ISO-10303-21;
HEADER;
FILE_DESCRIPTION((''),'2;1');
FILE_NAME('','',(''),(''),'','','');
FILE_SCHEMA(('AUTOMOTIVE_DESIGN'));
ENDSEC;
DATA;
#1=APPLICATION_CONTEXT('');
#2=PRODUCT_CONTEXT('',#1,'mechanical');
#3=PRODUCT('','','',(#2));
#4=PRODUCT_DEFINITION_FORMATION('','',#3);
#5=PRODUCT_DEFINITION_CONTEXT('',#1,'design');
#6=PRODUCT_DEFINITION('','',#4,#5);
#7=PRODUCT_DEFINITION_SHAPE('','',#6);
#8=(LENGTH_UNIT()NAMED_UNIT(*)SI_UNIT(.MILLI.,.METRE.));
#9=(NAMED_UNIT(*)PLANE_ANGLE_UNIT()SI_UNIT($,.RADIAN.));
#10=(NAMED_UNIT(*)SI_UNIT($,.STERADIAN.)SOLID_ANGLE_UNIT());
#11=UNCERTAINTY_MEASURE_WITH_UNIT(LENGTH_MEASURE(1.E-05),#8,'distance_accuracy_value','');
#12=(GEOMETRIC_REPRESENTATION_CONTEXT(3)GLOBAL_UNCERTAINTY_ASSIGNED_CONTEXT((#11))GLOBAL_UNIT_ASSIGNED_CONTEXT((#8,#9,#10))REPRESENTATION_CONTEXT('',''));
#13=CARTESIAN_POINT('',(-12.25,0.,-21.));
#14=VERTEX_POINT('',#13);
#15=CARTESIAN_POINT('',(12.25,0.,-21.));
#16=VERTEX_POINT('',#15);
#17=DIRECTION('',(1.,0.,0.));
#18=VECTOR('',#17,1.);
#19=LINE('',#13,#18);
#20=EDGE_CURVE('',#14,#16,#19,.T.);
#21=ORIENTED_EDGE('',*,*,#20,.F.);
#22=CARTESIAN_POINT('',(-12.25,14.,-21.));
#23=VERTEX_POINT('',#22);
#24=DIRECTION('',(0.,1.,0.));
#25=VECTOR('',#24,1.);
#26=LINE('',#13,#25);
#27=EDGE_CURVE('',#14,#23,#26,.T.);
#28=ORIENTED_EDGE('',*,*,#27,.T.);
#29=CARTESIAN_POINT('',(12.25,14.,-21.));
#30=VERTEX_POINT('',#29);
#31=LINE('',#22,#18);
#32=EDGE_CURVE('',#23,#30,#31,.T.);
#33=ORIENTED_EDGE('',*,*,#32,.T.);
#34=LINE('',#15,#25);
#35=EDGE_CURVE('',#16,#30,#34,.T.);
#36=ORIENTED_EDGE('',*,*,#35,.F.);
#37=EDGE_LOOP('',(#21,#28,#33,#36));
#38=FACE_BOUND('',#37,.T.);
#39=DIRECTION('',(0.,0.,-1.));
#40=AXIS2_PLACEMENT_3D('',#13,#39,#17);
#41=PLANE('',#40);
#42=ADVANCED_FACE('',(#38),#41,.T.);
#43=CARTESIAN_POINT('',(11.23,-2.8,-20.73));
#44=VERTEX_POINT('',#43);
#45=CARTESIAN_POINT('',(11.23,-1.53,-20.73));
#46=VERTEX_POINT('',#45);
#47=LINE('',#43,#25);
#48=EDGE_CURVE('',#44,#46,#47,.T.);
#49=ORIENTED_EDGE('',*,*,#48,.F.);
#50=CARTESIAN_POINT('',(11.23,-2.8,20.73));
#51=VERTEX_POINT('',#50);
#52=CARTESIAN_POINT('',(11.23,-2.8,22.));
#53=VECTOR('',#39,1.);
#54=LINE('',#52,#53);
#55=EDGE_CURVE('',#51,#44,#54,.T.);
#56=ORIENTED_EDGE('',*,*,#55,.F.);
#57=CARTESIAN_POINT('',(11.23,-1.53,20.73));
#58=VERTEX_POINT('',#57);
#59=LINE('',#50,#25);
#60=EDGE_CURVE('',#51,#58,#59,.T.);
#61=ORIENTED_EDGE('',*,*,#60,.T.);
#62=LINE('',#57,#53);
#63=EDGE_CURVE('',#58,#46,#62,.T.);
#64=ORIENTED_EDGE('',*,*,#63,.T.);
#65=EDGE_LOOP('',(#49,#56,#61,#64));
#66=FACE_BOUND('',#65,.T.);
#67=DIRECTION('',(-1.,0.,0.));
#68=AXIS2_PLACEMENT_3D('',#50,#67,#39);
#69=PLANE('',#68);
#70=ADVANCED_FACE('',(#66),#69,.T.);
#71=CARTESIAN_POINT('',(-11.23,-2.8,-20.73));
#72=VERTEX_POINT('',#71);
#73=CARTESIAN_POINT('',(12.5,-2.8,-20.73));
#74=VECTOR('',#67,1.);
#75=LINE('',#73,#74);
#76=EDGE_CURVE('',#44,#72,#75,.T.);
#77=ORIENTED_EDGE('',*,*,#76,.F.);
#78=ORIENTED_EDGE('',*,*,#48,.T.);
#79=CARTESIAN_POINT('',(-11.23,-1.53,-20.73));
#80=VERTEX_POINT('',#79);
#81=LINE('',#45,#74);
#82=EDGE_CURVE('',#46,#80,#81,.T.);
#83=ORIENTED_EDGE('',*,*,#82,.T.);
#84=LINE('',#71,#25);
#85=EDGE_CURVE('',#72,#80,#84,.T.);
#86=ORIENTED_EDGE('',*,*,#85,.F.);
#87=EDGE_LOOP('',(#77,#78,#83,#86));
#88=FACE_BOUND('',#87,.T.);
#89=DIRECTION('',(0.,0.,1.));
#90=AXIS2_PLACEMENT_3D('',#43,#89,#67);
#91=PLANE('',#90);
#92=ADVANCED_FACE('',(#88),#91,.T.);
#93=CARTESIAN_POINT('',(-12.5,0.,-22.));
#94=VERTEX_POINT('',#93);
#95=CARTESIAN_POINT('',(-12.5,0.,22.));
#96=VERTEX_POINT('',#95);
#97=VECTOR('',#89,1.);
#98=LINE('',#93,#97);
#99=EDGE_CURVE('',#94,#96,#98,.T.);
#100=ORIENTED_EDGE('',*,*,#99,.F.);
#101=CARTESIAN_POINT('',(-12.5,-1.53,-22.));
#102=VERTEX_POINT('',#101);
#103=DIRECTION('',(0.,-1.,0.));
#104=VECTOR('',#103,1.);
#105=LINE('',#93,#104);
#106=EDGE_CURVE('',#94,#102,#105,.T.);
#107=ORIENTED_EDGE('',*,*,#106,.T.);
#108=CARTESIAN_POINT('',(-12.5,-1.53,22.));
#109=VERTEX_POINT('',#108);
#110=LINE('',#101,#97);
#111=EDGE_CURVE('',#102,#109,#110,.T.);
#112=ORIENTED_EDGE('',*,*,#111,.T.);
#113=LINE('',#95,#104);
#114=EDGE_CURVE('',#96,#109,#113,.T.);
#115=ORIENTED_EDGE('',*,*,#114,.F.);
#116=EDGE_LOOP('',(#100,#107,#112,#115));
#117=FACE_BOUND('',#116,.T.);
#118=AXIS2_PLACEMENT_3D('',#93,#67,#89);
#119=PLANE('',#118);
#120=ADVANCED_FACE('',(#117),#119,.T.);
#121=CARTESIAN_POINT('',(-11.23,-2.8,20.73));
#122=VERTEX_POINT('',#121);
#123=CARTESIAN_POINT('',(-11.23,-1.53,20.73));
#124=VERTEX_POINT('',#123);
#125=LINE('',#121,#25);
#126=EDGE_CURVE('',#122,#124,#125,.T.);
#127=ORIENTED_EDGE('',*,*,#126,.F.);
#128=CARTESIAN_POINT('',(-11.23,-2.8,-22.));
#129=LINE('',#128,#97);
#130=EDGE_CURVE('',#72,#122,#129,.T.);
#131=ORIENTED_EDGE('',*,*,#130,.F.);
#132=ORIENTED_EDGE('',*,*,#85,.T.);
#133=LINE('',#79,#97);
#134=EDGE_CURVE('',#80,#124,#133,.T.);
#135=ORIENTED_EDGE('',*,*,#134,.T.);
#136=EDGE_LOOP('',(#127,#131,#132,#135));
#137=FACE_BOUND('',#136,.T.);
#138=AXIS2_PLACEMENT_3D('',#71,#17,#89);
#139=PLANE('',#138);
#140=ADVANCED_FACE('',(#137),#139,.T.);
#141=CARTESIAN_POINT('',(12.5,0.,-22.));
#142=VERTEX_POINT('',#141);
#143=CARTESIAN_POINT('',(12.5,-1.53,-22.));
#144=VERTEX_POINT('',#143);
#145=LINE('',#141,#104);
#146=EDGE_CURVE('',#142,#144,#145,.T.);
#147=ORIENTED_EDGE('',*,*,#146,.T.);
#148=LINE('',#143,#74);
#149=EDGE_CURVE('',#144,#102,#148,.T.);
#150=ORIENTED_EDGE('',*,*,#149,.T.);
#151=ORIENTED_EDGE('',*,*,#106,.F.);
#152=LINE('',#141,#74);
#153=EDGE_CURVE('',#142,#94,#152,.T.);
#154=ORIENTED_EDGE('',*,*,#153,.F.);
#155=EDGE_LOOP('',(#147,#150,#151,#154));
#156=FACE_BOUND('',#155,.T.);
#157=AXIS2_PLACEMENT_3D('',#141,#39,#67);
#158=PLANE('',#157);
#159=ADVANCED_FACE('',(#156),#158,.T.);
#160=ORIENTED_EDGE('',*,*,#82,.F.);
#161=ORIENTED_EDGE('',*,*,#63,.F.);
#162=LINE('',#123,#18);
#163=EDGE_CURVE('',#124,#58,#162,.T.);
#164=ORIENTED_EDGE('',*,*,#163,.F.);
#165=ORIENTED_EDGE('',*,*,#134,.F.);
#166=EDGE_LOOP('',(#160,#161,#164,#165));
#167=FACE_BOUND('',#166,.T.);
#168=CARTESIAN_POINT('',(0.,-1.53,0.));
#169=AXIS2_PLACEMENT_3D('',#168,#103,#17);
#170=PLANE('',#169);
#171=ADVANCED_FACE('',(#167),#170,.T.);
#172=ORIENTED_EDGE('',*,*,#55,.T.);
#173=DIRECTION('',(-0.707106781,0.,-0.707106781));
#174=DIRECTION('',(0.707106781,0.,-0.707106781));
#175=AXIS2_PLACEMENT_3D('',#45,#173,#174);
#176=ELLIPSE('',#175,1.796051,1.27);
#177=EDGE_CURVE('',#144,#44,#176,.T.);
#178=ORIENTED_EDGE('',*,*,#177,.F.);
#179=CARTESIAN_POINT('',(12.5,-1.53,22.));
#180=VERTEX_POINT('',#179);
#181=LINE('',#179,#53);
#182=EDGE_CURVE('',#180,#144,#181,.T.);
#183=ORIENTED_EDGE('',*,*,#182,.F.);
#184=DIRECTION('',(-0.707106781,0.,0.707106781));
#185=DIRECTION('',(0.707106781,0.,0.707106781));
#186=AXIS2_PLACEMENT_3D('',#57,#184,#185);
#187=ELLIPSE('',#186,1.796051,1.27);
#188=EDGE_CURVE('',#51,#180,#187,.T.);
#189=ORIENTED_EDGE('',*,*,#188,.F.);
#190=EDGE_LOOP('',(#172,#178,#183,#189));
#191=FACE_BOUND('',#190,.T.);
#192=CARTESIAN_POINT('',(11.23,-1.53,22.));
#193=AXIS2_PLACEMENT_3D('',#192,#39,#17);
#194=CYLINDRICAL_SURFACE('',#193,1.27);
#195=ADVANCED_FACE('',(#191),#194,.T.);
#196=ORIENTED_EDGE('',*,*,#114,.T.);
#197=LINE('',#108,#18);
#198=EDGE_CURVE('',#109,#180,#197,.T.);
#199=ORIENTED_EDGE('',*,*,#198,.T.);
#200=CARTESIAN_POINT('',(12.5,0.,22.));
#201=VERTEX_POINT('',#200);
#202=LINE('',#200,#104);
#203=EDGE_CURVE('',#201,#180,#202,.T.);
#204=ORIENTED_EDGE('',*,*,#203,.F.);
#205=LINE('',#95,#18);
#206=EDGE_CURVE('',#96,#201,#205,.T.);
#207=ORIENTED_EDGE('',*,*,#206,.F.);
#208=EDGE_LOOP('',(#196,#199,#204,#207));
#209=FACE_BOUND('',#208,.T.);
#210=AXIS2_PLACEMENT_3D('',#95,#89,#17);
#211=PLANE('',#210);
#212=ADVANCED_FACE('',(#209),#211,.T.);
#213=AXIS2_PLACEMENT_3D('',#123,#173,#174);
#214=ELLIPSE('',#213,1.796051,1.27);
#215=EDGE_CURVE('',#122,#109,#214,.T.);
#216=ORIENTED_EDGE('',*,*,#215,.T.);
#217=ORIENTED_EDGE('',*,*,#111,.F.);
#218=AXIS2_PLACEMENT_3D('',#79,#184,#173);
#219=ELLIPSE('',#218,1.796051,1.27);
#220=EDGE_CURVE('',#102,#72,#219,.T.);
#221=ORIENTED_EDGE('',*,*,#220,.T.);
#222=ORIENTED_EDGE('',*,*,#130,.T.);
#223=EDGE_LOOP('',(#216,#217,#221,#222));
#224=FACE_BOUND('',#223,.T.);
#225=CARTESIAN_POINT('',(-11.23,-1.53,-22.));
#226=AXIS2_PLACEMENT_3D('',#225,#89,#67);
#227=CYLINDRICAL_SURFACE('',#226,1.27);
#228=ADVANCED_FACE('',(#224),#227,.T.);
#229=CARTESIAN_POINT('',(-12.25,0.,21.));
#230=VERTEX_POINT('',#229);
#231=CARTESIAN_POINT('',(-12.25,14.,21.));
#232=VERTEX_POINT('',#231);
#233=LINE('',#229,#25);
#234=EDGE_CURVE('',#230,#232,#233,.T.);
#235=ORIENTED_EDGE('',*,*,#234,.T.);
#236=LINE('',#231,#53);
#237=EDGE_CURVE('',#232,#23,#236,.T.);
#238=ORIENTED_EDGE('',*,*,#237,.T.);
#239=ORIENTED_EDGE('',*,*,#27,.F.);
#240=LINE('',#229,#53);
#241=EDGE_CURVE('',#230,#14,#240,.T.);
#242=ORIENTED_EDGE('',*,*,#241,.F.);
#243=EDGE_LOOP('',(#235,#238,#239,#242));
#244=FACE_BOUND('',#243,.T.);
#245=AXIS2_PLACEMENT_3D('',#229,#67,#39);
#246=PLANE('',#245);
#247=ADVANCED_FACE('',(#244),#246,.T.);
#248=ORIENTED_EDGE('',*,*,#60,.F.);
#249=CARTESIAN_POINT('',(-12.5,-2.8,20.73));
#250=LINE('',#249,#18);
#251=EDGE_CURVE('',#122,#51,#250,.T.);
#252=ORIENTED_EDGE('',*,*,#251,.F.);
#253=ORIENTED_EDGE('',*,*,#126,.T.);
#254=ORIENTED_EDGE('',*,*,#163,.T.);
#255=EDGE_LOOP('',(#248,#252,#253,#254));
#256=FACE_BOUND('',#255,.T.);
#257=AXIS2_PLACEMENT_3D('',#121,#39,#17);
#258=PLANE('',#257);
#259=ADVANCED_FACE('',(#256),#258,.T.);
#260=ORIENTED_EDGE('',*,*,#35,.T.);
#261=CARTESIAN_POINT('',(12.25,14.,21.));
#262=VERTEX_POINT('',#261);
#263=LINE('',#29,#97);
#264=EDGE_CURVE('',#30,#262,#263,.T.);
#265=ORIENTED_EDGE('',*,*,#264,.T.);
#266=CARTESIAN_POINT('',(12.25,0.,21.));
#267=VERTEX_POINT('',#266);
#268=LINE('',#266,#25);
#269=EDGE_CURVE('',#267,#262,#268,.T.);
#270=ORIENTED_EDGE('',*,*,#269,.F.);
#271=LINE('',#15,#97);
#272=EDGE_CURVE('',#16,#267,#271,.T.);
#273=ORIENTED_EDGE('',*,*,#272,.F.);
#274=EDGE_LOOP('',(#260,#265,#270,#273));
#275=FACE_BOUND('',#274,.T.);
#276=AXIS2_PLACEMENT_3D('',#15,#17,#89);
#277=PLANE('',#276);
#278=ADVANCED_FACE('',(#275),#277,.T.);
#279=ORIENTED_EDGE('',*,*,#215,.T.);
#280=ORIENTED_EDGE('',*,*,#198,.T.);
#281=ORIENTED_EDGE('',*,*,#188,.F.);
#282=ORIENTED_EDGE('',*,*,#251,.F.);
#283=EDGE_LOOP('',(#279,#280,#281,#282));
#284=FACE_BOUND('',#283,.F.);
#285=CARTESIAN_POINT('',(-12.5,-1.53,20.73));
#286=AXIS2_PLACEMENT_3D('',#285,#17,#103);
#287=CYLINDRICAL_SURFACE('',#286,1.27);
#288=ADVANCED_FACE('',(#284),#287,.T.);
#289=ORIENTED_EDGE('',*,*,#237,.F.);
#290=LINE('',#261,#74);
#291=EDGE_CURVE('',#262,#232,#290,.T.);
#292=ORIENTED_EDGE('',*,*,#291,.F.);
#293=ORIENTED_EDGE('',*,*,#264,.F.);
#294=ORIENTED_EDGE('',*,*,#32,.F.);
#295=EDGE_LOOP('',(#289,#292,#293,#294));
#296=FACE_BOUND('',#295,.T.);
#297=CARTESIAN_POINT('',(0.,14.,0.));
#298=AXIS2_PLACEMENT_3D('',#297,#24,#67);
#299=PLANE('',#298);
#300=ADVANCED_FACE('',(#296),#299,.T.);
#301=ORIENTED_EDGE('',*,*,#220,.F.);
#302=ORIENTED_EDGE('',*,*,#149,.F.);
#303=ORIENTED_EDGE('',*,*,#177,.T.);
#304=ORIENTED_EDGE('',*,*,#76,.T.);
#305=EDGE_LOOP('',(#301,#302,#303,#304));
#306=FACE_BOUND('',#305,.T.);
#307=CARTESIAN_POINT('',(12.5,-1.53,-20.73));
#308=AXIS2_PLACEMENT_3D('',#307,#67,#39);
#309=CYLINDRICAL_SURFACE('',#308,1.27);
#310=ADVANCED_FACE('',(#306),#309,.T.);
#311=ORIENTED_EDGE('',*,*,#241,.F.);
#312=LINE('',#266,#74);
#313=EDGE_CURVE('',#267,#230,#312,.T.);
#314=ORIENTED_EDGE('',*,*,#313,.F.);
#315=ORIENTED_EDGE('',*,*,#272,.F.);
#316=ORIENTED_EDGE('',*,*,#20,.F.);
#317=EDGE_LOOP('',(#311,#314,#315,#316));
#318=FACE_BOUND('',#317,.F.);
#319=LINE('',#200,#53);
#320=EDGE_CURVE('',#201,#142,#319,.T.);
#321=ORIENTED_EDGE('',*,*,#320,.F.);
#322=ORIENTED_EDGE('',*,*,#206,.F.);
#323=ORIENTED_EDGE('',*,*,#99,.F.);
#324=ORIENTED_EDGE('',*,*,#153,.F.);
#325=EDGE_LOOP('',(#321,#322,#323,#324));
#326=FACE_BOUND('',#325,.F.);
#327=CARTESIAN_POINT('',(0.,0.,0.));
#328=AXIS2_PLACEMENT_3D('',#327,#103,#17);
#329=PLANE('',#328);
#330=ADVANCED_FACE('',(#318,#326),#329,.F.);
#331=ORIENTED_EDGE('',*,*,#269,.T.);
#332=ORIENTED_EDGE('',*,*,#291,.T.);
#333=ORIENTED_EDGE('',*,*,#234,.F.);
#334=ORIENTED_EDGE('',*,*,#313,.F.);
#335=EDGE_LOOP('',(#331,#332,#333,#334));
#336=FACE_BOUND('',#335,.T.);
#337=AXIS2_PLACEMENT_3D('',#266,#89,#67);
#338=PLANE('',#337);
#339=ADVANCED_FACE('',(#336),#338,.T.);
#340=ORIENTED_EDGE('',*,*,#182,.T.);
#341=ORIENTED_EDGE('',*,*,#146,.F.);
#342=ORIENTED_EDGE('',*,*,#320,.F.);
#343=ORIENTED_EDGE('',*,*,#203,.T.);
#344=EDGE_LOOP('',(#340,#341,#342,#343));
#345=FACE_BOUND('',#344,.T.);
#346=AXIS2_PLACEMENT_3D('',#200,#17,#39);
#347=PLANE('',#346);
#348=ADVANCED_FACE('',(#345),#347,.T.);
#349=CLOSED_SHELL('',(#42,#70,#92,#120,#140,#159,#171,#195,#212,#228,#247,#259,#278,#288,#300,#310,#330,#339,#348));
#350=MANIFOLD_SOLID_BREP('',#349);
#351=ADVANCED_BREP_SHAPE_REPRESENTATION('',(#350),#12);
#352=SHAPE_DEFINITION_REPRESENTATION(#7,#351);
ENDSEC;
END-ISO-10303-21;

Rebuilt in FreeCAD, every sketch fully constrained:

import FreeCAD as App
import Part
import Sketcher

V = App.Vector


def edges_at(feature, points):
    """Names of the edges that pass closest to the given points."""
    edges = feature.Shape.Edges
    near = lambda p: min(range(len(edges)), key=lambda i: edges[i].distToShape(Part.Vertex(*p))[0])
    return sorted({f"Edge{near(p) + 1}" for p in points})


def add_polygon(sketch, points):
    """Adds a closed chain of lines whose ends are joined by coincident constraints."""
    first, n = sketch.GeometryCount, len(points)
    for a, b in zip(points, points[1:] + points[:1]):
        sketch.addGeometry(Part.LineSegment(App.Vector(*a, 0), App.Vector(*b, 0)), False)
    for i in range(n):
        sketch.addConstraint(Sketcher.Constraint("Coincident", first + i, 2, first + (i + 1) % n, 1))

doc = App.newDocument("Part")
params = doc.addObject("Spreadsheet::Sheet", "Params")
for row, (alias, value) in enumerate([
    ("sketch1_height", "42 mm"),
    ("sketch1_width", "24.5 mm"),
    ("pad1_length", "14 mm"),
    ("sketch2_width", "25 mm"),
    ("sketch2_height", "44 mm"),
    ("pad2_length", "2.8 mm"),
    ("fillet_radius", "1.27 mm"),
    ("sketch3_width", "22.46 mm"),
    ("sketch3_height", "41.46 mm"),
    ("pocket1_length", "1.27 mm"),
], start=1):
    params.set(f"A{row}", alias)
    params.set(f"B{row}", "=" + value)
    params.setAlias(f"B{row}", alias)

body = doc.addObject("PartDesign::Body", "Body")

sketch1 = doc.addObject("Sketcher::SketchObject", "Sketch")
body.addObject(sketch1)
sketch1.AttachmentSupport = (doc.XZ_Plane, [""])
sketch1.MapMode = "FlatFace"
add_polygon(sketch1, [(-12, 21), (12, 21), (12, -21), (-12, -21)])
sketch1.addConstraint([
    Sketcher.Constraint("Horizontal", 0),
    Sketcher.Constraint("Vertical", 1),
    Sketcher.Constraint("Horizontal", 2),
    Sketcher.Constraint("Vertical", 3),
    Sketcher.Constraint("Symmetric", 0, 2, 2, 2, -1, 1),
    Sketcher.Constraint("DistanceY", 1, 2, 1, 1, 42.0),
    Sketcher.Constraint("DistanceX", 0, 1, 0, 2, 24.5),
])
sketch1.setExpression("Constraints[9]", "Params.sketch1_height")
sketch1.setExpression("Constraints[10]", "Params.sketch1_width")
pad1 = doc.addObject("PartDesign::Pad", "Pad")
body.addObject(pad1)
pad1.Profile = sketch1
pad1.setExpression("Length", "Params.pad1_length")
pad1.Reversed = True

sketch2 = doc.addObject("Sketcher::SketchObject", "Sketch001")
body.addObject(sketch2)
sketch2.AttachmentSupport = (doc.XZ_Plane, [""])
sketch2.MapMode = "FlatFace"
add_polygon(sketch2, [(-12, -22), (12, -22), (12, 22), (-12, 22)])
sketch2.addConstraint([
    Sketcher.Constraint("Horizontal", 0),
    Sketcher.Constraint("Vertical", 1),
    Sketcher.Constraint("Horizontal", 2),
    Sketcher.Constraint("Vertical", 3),
    Sketcher.Constraint("Symmetric", 0, 2, 2, 2, -1, 1),
    Sketcher.Constraint("DistanceX", 0, 1, 0, 2, 25.0),
    Sketcher.Constraint("DistanceY", 1, 1, 1, 2, 44.0),
])
sketch2.setExpression("Constraints[9]", "Params.sketch2_width")
sketch2.setExpression("Constraints[10]", "Params.sketch2_height")
pad2 = doc.addObject("PartDesign::Pad", "Pad001")
body.addObject(pad2)
pad2.Profile = sketch2
pad2.setExpression("Length", "Params.pad2_length")
doc.recompute()

fillet = doc.addObject("PartDesign::Fillet", "Fillet")
body.addObject(fillet)
fillet.Base = (pad2, edges_at(pad2, [
    (0, -2.8, 22),
    (12.5, -2.8, 0),
    (0, -2.8, -22),
    (-12.5, -2.8, 0),
]))
fillet.setExpression("Radius", "Params.fillet_radius")

sketch3 = doc.addObject("Sketcher::SketchObject", "Sketch002")
body.addObject(sketch3)
sketch3.AttachmentSupport = (doc.XZ_Plane, [""])
sketch3.MapMode = "FlatFace"
sketch3.AttachmentOffset = App.Placement(V(0, 0, 2.8), App.Rotation())
add_polygon(sketch3, [(-11, 21), (-11, -21), (11, -21), (11, 21)])
sketch3.addConstraint([
    Sketcher.Constraint("Vertical", 0),
    Sketcher.Constraint("Horizontal", 1),
    Sketcher.Constraint("Vertical", 2),
    Sketcher.Constraint("Horizontal", 3),
    Sketcher.Constraint("Symmetric", 0, 2, 2, 2, -1, 1),
    Sketcher.Constraint("DistanceX", 1, 1, 1, 2, 22.46),
    Sketcher.Constraint("DistanceY", 0, 2, 0, 1, 41.46),
])
sketch3.setExpression("Constraints[9]", "Params.sketch3_width")
sketch3.setExpression("Constraints[10]", "Params.sketch3_height")
pocket1 = doc.addObject("PartDesign::Pocket", "Pocket")
body.addObject(pocket1)
pocket1.Profile = sketch3
pocket1.setExpression("Length", "Params.pocket1_length")

doc.recompute()
